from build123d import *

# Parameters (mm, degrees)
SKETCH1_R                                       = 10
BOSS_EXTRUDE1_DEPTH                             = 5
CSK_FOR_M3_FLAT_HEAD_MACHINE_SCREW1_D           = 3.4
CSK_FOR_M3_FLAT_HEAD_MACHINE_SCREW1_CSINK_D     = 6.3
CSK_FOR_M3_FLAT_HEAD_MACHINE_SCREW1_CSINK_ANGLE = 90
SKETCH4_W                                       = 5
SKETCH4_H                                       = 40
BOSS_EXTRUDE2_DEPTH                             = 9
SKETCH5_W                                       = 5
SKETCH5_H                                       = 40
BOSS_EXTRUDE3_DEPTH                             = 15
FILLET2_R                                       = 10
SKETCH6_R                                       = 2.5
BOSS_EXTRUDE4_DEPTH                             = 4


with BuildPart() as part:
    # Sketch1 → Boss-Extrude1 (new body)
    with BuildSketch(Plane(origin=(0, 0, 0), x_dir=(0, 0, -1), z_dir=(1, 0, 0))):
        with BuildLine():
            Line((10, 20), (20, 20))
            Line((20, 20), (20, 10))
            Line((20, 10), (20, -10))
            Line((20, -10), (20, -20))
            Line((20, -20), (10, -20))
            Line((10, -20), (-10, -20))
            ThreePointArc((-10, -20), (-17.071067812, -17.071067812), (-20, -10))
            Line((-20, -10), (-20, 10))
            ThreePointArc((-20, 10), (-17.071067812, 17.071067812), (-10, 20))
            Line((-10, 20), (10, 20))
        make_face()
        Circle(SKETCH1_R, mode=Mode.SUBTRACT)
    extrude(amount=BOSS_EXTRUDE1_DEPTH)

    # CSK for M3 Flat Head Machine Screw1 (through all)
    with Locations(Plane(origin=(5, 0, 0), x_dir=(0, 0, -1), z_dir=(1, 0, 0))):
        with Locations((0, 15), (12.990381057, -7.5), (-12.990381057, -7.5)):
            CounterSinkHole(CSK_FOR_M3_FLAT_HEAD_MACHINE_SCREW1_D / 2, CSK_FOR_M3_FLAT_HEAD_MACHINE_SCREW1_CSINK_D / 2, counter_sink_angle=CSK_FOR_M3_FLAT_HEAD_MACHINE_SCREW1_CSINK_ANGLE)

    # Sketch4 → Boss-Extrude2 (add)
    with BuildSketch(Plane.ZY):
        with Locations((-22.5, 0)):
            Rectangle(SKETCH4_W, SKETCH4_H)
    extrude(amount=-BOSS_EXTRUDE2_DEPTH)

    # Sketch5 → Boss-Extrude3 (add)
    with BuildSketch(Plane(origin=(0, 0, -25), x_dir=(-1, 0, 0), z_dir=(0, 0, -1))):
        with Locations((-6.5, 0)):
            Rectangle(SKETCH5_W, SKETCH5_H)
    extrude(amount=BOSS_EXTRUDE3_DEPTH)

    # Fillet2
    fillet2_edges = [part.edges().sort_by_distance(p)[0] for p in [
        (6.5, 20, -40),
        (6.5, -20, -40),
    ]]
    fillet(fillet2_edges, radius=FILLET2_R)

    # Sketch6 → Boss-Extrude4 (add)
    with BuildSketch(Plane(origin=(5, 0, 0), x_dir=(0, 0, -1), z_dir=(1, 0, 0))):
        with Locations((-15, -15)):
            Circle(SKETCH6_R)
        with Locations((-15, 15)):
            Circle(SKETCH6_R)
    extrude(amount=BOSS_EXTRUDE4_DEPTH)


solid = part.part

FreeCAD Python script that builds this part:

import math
import FreeCAD as App
import Part
import Sketcher
from FreeCAD import Vector


def edges_at(feature, points):
    """Names of the edges that pass closest to the given points."""
    edges = feature.Shape.Edges
    near = lambda p: min(range(len(edges)), key=lambda i: edges[i].distToShape(Part.Vertex(*p))[0])
    return sorted({f"Edge{near(p) + 1}" for p in points})


def add_polygon(sketch, points):
    """Adds a closed chain of lines whose ends are joined by coincident constraints."""
    first, n = sketch.GeometryCount, len(points)
    for a, b in zip(points, points[1:] + points[:1]):
        sketch.addGeometry(Part.LineSegment(App.Vector(*a, 0), App.Vector(*b, 0)), False)
    for i in range(n):
        sketch.addConstraint(Sketcher.Constraint("Coincident", first + i, 2, first + (i + 1) % n, 1))

doc = App.newDocument("Part")
body = doc.addObject("PartDesign::Body", "Body")

# Sketch on YZ plane
sketch1 = body.newObject("Sketcher::SketchObject", "Sketch")
sketch1.AttachmentSupport = (doc.getObject("YZ_Plane"), [""])
sketch1.MapMode = "FlatFace"
sketch1.addGeometry([
    Part.LineSegment(Vector(-20, -20, 0), Vector(20, -20, 0)),  # 0
    Part.LineSegment(Vector(20, -20, 0), Vector(20, 10, 0)),  # 1
    Part.ArcOfCircle(Part.Circle(Vector(10, 10, 0), Vector(0, 0, 1), 10), math.radians(0), math.radians(90)),  # 2
    Part.LineSegment(Vector(10, 20, 0), Vector(-10, 20, 0)),  # 3
    Part.ArcOfCircle(Part.Circle(Vector(-10, 10, 0), Vector(0, 0, 1), 10), math.radians(90), math.radians(180)),  # 4
    Part.LineSegment(Vector(-20, 10, 0), Vector(-20, -20, 0)),  # 5
    Part.Circle(Vector(0, 0, 0), Vector(0, 0, 1), 10),  # 6
], False)
sketch1.addConstraint([
    Sketcher.Constraint("Coincident", 0, 2, 1, 1),
    Sketcher.Constraint("Tangent", 1, 2, 2, 1),
    Sketcher.Constraint("Tangent", 2, 2, 3, 1),
    Sketcher.Constraint("Tangent", 3, 2, 4, 1),
    Sketcher.Constraint("Tangent", 4, 2, 5, 1),
    Sketcher.Constraint("Coincident", 5, 2, 0, 1),
    Sketcher.Constraint("Horizontal", 0),
    Sketcher.Constraint("Vertical", 1),
    Sketcher.Constraint("Horizontal", 3),
    Sketcher.Constraint("Vertical", 5),
    Sketcher.Constraint("Coincident", 6, 3, -1, 1),
    Sketcher.Constraint("Equal", 2, 4),
    Sketcher.Constraint("Equal", 4, 6),
    Sketcher.Constraint("Diameter", 6, 20.0),
    Sketcher.Constraint("DistanceX", 0, 1, 0, 2, 40.0),
    Sketcher.Constraint("DistanceY", 1, 1, 1, 2, 30.0),
    Sketcher.Constraint("DistanceX", -1, 1, 2, 3, 10.0),
    Sketcher.Constraint("DistanceY", -1, 1, 2, 3, 10.0),
])
pad1 = body.newObject("PartDesign::Pad", "Pad")
pad1.Profile = sketch1
pad1.Length = 5

# Sketch on YZ plane
sketch2 = body.newObject("Sketcher::SketchObject", "Sketch001")
sketch2.AttachmentSupport = (doc.getObject("YZ_Plane"), [""])
sketch2.MapMode = "FlatFace"
sketch2.AttachmentOffset = App.Placement(Vector(0, 0, 5), App.Rotation())
sketch2.addGeometry([
    Part.Circle(Vector(15, 0, 0), Vector(0, 0, 1), 1.7),
    Part.Circle(Vector(-7.5, -12.990381, 0), Vector(0, 0, 1), 1.7),
    Part.Circle(Vector(-7.5, 12.990381, 0), Vector(0, 0, 1), 1.7),
], False)
sketch2.addConstraint([
    Sketcher.Constraint("Equal", 0, 1),
    Sketcher.Constraint("Equal", 1, 2),
    Sketcher.Constraint("Symmetric", 1, 3, 2, 3, -1),
    Sketcher.Constraint("PointOnObject", 0, 3, -1),
    Sketcher.Constraint("Diameter", 0, 3.4),
    Sketcher.Constraint("DistanceX", -1, 1, 0, 3, 15.0),
    Sketcher.Constraint("DistanceX", 1, 3, -1, 1, 7.5),
    Sketcher.Constraint("DistanceY", 1, 3, -1, 1, 12.990381),
])
doc.recompute()
hole = body.newObject("PartDesign::Hole", "Hole")
hole.Profile = sketch2
hole.ThreadType = "None"
hole.Diameter = 3.4
hole.DepthType = "ThroughAll"
hole.HoleCutType = "Countersink"
hole.HoleCutDiameter = 6.3
hole.HoleCutCountersinkAngle = 90

# Sketch on YZ plane
sketch3 = body.newObject("Sketcher::SketchObject", "Sketch002")
sketch3.AttachmentSupport = (doc.getObject("YZ_Plane"), [""])
sketch3.MapMode = "FlatFace"
add_polygon(sketch3, [(20, -25), (-20, -25), (-20, -20), (20, -20)])  # lines 0-3
sketch3.addConstraint([
    Sketcher.Constraint("Horizontal", 0),
    Sketcher.Constraint("Vertical", 1),
    Sketcher.Constraint("Horizontal", 2),
    Sketcher.Constraint("Vertical", 3),
    Sketcher.Constraint("DistanceX", 0, 2, 0, 1, 40.0),
    Sketcher.Constraint("DistanceY", 1, 1, 1, 2, 5.0),
    Sketcher.Constraint("DistanceX", 0, 2, -1, 1, 20.0),
    Sketcher.Constraint("DistanceY", 0, 2, -1, 1, 25.0),
])
pad2 = body.newObject("PartDesign::Pad", "Pad001")
pad2.Profile = sketch3
pad2.Length = 9

# Sketch on XY plane
sketch4 = body.newObject("Sketcher::SketchObject", "Sketch003")
sketch4.AttachmentSupport = (doc.getObject("XY_Plane"), [""])
sketch4.MapMode = "FlatFace"
sketch4.AttachmentOffset = App.Placement(Vector(0, 0, -25), App.Rotation())
add_polygon(sketch4, [(9, 20), (9, -20), (4, -20), (4, 20)])  # lines 0-3
sketch4.addConstraint([
    Sketcher.Constraint("Vertical", 0),
    Sketcher.Constraint("Horizontal", 1),
    Sketcher.Constraint("Vertical", 2),
    Sketcher.Constraint("Horizontal", 3),
    Sketcher.Constraint("DistanceX", 1, 2, 1, 1, 5.0),
    Sketcher.Constraint("DistanceY", 0, 2, 0, 1, 40.0),
    Sketcher.Constraint("DistanceX", -1, 1, 0, 2, 9.0),
    Sketcher.Constraint("DistanceY", 0, 2, -1, 1, 20.0),
])
pad3 = body.newObject("PartDesign::Pad", "Pad002")
pad3.Profile = sketch4
pad3.Length = 15
pad3.Reversed = True
doc.recompute()

fillet = body.newObject("PartDesign::Fillet", "Fillet")
fillet.Base = (pad3, edges_at(pad3, [(6.5, 20, -40), (6.5, -20, -40)]))
fillet.Radius = 10

# Sketch on YZ plane
sketch5 = body.newObject("Sketcher::SketchObject", "Sketch004")
sketch5.AttachmentSupport = (doc.getObject("YZ_Plane"), [""])
sketch5.MapMode = "FlatFace"
sketch5.AttachmentOffset = App.Placement(Vector(0, 0, 5), App.Rotation())
sketch5.addGeometry([
    Part.Circle(Vector(-15, 15, 0), Vector(0, 0, 1), 2.5),
    Part.Circle(Vector(15, 15, 0), Vector(0, 0, 1), 2.5),
], False)
sketch5.addConstraint([
    Sketcher.Constraint("Equal", 0, 1),
    Sketcher.Constraint("Symmetric", 0, 3, 1, 3, -2),
    Sketcher.Constraint("Diameter", 0, 5.0),
    Sketcher.Constraint("DistanceX", 0, 3, -1, 1, 15.0),
    Sketcher.Constraint("DistanceY", -1, 1, 0, 3, 15.0),
])
pad4 = body.newObject("PartDesign::Pad", "Pad003")
pad4.Profile = sketch5
pad4.Length = 4

doc.recompute()
